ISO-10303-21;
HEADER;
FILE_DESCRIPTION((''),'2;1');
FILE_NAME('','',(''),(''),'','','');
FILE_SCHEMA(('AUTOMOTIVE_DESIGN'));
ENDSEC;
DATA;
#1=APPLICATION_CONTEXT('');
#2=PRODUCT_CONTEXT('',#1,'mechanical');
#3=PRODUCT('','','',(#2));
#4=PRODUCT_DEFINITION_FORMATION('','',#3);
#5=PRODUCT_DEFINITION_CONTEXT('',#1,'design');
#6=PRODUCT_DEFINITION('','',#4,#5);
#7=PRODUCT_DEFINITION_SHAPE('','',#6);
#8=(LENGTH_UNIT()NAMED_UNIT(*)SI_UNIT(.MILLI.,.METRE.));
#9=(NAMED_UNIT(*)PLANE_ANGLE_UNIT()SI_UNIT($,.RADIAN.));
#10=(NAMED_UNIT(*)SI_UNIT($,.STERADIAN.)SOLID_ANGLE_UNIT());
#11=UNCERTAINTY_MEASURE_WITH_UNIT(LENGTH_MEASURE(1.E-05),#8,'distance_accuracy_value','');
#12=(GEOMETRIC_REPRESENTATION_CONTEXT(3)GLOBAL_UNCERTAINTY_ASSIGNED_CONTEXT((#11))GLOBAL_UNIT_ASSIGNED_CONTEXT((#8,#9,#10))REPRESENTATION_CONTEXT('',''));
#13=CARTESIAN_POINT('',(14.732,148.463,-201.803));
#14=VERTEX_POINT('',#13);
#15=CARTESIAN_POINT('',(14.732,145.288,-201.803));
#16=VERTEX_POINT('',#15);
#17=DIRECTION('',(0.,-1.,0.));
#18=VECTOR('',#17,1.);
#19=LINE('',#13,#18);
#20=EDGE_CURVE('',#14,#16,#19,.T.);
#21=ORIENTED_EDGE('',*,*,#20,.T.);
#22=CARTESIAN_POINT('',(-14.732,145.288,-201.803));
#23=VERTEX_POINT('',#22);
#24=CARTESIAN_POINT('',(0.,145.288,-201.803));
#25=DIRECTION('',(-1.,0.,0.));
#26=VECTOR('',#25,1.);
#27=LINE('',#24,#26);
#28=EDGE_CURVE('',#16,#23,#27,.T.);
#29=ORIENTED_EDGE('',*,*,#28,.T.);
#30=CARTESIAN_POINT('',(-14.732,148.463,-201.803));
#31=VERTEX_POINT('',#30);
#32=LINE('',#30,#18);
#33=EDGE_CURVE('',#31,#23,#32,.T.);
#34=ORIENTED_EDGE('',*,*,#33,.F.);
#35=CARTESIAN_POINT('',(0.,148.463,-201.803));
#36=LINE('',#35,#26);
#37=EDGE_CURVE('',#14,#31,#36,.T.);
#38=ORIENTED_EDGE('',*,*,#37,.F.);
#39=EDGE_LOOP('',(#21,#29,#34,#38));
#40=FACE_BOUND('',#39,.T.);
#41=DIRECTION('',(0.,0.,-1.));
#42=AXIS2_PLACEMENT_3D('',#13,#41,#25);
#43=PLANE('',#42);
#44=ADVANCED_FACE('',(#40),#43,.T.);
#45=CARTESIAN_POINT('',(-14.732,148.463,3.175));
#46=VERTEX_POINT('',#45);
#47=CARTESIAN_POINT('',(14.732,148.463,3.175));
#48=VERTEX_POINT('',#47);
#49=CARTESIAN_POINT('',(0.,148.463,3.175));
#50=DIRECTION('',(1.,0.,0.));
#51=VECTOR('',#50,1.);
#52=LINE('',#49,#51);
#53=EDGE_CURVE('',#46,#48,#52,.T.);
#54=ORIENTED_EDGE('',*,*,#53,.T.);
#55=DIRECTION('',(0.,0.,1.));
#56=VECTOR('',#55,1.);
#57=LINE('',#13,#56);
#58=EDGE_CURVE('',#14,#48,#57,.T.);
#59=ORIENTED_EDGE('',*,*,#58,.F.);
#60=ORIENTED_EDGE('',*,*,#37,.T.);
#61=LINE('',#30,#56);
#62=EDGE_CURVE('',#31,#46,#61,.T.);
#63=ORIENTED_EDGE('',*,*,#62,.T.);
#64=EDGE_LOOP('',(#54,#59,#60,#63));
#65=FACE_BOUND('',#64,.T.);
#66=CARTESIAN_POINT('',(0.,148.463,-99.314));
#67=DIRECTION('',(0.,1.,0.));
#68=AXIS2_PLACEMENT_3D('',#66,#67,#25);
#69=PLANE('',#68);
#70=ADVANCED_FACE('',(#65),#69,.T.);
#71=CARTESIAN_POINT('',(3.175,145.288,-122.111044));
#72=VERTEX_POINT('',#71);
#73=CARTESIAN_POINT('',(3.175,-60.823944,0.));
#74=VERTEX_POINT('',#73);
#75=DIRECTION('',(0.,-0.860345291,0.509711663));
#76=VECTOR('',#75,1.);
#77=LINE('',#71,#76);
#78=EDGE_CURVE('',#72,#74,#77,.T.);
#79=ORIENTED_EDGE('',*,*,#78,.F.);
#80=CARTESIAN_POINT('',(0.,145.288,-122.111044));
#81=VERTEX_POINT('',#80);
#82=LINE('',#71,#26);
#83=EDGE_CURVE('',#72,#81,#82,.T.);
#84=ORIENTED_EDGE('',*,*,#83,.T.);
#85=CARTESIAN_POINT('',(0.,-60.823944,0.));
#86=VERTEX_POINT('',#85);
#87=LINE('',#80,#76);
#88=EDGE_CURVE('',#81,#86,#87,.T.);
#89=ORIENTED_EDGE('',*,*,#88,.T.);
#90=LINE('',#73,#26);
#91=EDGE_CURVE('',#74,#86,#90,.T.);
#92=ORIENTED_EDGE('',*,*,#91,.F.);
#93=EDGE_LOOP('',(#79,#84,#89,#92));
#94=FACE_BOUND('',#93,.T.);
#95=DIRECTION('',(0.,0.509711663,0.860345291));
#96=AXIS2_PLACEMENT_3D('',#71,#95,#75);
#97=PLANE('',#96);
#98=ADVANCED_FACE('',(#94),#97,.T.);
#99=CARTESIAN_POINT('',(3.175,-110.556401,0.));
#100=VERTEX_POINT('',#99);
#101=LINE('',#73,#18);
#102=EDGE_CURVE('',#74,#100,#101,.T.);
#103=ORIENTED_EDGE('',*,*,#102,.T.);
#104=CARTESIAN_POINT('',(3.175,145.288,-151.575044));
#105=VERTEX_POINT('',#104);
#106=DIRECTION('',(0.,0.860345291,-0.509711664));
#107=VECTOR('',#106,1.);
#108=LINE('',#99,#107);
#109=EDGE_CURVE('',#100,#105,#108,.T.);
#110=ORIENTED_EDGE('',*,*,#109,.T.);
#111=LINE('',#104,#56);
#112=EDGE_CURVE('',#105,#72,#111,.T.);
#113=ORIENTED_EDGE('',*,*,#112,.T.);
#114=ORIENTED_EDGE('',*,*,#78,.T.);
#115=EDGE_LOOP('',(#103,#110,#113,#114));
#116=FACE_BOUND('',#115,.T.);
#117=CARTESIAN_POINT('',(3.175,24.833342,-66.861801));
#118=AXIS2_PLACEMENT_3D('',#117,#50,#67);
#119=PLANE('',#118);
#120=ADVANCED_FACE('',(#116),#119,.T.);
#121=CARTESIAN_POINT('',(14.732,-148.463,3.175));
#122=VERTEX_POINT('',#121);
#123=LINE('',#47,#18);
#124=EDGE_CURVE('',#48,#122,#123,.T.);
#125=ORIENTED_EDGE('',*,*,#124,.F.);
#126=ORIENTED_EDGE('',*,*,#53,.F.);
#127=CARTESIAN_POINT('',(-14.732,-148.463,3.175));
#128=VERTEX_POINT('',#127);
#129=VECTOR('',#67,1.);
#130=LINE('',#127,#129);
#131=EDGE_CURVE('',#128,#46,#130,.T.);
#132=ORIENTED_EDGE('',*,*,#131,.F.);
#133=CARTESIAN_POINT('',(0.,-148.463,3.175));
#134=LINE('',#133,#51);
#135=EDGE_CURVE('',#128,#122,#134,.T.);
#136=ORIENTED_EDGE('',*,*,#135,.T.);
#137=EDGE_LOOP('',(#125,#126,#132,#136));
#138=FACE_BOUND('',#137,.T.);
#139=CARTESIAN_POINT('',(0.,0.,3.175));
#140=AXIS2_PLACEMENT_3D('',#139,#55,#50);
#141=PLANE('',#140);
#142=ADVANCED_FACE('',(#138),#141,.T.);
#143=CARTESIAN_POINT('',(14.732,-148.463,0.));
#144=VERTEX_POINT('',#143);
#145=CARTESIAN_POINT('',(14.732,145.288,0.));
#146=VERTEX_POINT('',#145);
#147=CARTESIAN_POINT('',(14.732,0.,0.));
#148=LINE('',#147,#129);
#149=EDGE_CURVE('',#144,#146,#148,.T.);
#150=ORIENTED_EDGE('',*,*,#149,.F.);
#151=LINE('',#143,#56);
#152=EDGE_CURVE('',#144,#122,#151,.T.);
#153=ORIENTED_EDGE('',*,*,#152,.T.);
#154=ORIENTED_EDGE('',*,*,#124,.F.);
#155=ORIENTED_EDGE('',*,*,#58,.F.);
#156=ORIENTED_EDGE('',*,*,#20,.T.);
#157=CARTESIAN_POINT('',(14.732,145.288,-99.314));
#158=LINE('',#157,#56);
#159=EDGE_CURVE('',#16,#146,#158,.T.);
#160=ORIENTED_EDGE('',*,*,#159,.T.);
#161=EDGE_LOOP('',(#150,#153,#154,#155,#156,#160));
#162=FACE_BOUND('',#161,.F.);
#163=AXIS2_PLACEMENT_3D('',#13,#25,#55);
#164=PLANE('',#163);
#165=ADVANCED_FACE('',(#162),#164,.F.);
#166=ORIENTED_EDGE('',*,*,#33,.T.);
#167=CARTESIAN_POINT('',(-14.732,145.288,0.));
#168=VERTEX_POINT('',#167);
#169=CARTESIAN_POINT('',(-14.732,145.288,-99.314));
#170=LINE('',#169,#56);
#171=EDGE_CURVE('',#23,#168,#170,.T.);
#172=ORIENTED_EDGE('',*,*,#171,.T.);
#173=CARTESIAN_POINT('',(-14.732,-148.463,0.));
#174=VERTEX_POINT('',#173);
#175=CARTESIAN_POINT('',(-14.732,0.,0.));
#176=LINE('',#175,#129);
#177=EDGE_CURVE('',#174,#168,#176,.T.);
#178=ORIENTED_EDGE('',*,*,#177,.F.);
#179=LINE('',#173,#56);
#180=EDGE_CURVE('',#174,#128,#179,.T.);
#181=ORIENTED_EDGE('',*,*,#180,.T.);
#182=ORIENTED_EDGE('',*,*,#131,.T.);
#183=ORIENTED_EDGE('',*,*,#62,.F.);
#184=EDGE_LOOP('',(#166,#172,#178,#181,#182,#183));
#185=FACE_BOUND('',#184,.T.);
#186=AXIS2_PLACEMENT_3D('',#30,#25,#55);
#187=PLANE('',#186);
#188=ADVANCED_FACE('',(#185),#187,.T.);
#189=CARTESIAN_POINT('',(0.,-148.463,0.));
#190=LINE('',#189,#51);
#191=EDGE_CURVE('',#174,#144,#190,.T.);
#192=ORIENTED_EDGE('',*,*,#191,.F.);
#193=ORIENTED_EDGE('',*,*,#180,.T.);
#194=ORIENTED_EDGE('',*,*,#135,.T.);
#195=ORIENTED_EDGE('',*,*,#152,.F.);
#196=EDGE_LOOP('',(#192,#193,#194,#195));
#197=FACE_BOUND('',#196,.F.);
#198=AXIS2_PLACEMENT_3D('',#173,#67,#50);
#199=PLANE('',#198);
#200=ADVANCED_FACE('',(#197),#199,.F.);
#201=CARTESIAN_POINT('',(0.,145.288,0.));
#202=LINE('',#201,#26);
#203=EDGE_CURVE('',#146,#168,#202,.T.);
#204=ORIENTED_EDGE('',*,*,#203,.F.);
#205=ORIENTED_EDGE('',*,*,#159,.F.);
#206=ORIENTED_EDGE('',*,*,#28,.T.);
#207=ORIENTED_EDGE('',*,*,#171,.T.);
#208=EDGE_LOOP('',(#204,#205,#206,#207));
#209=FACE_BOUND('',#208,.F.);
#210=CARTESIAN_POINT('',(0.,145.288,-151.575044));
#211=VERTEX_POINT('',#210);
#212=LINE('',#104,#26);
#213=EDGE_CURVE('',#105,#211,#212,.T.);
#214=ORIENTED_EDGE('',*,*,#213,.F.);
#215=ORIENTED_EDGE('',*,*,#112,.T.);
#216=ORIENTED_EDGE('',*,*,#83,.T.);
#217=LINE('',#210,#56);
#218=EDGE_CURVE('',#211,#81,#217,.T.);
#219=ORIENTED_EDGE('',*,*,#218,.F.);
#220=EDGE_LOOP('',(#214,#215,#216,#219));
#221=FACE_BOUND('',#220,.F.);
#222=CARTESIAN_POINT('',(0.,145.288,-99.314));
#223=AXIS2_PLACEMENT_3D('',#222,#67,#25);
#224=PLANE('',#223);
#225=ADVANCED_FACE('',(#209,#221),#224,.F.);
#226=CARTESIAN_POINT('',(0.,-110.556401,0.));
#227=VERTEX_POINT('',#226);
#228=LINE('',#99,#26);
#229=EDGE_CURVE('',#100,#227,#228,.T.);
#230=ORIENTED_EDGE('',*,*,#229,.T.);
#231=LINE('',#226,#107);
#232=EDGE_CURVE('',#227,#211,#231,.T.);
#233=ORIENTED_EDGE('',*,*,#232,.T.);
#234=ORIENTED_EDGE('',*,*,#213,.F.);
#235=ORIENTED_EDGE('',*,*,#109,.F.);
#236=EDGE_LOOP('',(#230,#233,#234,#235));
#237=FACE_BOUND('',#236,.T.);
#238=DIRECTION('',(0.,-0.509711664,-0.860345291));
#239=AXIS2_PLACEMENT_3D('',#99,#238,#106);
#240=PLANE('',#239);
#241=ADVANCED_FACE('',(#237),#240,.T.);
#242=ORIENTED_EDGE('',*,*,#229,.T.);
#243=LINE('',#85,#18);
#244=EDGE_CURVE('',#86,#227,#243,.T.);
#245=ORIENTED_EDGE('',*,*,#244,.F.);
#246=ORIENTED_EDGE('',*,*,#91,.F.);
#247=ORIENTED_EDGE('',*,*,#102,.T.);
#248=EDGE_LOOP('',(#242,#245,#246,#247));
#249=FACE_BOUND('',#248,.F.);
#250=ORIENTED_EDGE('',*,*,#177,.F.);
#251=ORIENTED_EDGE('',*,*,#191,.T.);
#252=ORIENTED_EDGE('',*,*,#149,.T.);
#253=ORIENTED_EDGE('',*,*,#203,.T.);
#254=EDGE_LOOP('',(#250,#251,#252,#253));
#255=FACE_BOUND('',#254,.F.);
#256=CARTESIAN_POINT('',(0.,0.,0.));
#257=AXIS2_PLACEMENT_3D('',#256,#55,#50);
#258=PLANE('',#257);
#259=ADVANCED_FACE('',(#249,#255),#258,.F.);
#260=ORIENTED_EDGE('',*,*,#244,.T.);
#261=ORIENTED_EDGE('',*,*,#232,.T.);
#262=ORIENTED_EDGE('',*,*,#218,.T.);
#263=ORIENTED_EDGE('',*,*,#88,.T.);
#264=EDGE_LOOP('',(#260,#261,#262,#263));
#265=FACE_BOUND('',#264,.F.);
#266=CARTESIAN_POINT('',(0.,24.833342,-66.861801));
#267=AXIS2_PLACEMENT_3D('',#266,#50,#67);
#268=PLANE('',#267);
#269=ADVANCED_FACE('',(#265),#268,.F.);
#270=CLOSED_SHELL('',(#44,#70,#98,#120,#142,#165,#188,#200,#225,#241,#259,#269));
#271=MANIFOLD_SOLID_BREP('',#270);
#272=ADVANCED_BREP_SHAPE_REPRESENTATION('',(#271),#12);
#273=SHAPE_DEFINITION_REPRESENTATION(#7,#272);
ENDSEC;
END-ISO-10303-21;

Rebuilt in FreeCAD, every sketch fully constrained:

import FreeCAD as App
import Part
import Sketcher
Q = App.Units.Quantity

doc = App.newDocument("Part")
body = doc.addObject("PartDesign::Body", "Body")

# Sketch on XY plane
sketch1 = body.newObject("Sketcher::SketchObject", "Sketch")
sketch1.AttachmentSupport = (doc.getObject("XY_Plane"), [""])
sketch1.MapMode = "FlatFace"
sketch1.addGeometry([
    Part.LineSegment(App.Vector(-14.732, 148.463, 0), App.Vector(-14.732, -148.463, 0)),
    Part.LineSegment(App.Vector(-14.732, -148.463, 0), App.Vector(14.732, -148.463, 0)),
    Part.LineSegment(App.Vector(14.732, -148.463, 0), App.Vector(14.732, 148.463, 0)),
    Part.LineSegment(App.Vector(14.732, 148.463, 0), App.Vector(-14.732, 148.463, 0)),
], False)
sketch1.addConstraint([
    Sketcher.Constraint("Coincident", 0, 2, 1, 1),
    Sketcher.Constraint("Coincident", 1, 2, 2, 1),
    Sketcher.Constraint("Coincident", 2, 2, 3, 1),
    Sketcher.Constraint("Coincident", 3, 2, 0, 1),
    Sketcher.Constraint("Vertical", 0),
    Sketcher.Constraint("Horizontal", 1),
    Sketcher.Constraint("Vertical", 2),
    Sketcher.Constraint("Horizontal", 3),
    Sketcher.Constraint("Symmetric", 0, 2, 2, 2, -1, 1),
    Sketcher.Constraint("DistanceX", 1, 1, 1, 2, Q("1.16 in")),
    Sketcher.Constraint("DistanceY", 0, 2, 0, 1, Q("11.69 in")),
])
pad1 = body.newObject("PartDesign::Pad", "Pad")
pad1.Profile = sketch1
pad1.Length = Q("0.125 in")

# Sketch on XZ plane
sketch2 = body.newObject("Sketcher::SketchObject", "Sketch001")
sketch2.AttachmentSupport = (doc.getObject("XZ_Plane"), [""])
sketch2.MapMode = "FlatFace"
sketch2.AttachmentOffset = App.Placement(App.Vector(0, 0, -5.845 * 25.4), App.Rotation())
sketch2.addGeometry([
    Part.LineSegment(App.Vector(14.732, 3.175, 0), App.Vector(14.732, -201.803, 0)),
    Part.LineSegment(App.Vector(14.732, -201.803, 0), App.Vector(-14.732, -201.803, 0)),
    Part.LineSegment(App.Vector(-14.732, -201.803, 0), App.Vector(-14.732, 3.175, 0)),
    Part.LineSegment(App.Vector(-14.732, 3.175, 0), App.Vector(14.732, 3.175, 0)),
], False)
sketch2.addConstraint([
    Sketcher.Constraint("Coincident", 0, 2, 1, 1),
    Sketcher.Constraint("Coincident", 1, 2, 2, 1),
    Sketcher.Constraint("Coincident", 2, 2, 3, 1),
    Sketcher.Constraint("Coincident", 3, 2, 0, 1),
    Sketcher.Constraint("Vertical", 0),
    Sketcher.Constraint("Horizontal", 1),
    Sketcher.Constraint("Vertical", 2),
    Sketcher.Constraint("Horizontal", 3),
    Sketcher.Constraint("DistanceX", 1, 2, 1, 1, Q("1.16 in")),
    Sketcher.Constraint("DistanceY", 0, 2, 0, 1, Q("8.07 in")),
    Sketcher.Constraint("DistanceX", -1, 1, 0, 2, Q("0.58 in")),
    Sketcher.Constraint("DistanceY", 0, 2, -1, 1, Q("7.945 in")),
])
pad2 = body.newObject("PartDesign::Pad", "Pad001")
pad2.Profile = sketch2
pad2.Length = Q("0.125 in")

# Sketch on YZ plane
sketch3 = body.newObject("Sketcher::SketchObject", "Sketch002")
sketch3.AttachmentSupport = (doc.getObject("YZ_Plane"), [""])
sketch3.MapMode = "FlatFace"
sketch3.AttachmentOffset = App.Placement(App.Vector(0, 0, 0.125 * 25.4), App.Rotation())
sketch3.addGeometry([
    Part.LineSegment(App.Vector(145.288, -151.575044, 0), App.Vector(145.288, -122.111044, 0)),
    Part.LineSegment(App.Vector(145.288, -122.111044, 0), App.Vector(-60.823944, 0, 0)),
    Part.LineSegment(App.Vector(-60.823944, 0, 0), App.Vector(-110.556401, 0, 0)),
    Part.LineSegment(App.Vector(-110.556401, 0, 0), App.Vector(145.288, -151.575044, 0)),
], False)
sketch3.addConstraint([
    Sketcher.Constraint("Coincident", 0, 2, 1, 1),
    Sketcher.Constraint("Coincident", 1, 2, 2, 1),
    Sketcher.Constraint("Coincident", 2, 2, 3, 1),
    Sketcher.Constraint("Coincident", 3, 2, 0, 1),
    Sketcher.Constraint("Vertical", 0),
    Sketcher.Constraint("Horizontal", 2),
    Sketcher.Constraint("PointOnObject", 1, 2, -1),
    Sketcher.Constraint("Parallel", 1, 3),
    Sketcher.Constraint("DistanceY", 0, 1, 0, 2, Q("1.16 in")),
    Sketcher.Constraint("DistanceX", -1, 1, 0, 2, Q("5.72 in")),
    Sketcher.Constraint("DistanceX", 2, 2, -1, 1, Q("110.556401 mm")),
    Sketcher.Constraint("DistanceX", 2, 2, 2, 1, Q("49.732457 mm")),
])
pad3 = body.newObject("PartDesign::Pad", "Pad002")
pad3.Profile = sketch3
pad3.Length = Q("0.125 in")
pad3.Reversed = True

doc.recompute()
